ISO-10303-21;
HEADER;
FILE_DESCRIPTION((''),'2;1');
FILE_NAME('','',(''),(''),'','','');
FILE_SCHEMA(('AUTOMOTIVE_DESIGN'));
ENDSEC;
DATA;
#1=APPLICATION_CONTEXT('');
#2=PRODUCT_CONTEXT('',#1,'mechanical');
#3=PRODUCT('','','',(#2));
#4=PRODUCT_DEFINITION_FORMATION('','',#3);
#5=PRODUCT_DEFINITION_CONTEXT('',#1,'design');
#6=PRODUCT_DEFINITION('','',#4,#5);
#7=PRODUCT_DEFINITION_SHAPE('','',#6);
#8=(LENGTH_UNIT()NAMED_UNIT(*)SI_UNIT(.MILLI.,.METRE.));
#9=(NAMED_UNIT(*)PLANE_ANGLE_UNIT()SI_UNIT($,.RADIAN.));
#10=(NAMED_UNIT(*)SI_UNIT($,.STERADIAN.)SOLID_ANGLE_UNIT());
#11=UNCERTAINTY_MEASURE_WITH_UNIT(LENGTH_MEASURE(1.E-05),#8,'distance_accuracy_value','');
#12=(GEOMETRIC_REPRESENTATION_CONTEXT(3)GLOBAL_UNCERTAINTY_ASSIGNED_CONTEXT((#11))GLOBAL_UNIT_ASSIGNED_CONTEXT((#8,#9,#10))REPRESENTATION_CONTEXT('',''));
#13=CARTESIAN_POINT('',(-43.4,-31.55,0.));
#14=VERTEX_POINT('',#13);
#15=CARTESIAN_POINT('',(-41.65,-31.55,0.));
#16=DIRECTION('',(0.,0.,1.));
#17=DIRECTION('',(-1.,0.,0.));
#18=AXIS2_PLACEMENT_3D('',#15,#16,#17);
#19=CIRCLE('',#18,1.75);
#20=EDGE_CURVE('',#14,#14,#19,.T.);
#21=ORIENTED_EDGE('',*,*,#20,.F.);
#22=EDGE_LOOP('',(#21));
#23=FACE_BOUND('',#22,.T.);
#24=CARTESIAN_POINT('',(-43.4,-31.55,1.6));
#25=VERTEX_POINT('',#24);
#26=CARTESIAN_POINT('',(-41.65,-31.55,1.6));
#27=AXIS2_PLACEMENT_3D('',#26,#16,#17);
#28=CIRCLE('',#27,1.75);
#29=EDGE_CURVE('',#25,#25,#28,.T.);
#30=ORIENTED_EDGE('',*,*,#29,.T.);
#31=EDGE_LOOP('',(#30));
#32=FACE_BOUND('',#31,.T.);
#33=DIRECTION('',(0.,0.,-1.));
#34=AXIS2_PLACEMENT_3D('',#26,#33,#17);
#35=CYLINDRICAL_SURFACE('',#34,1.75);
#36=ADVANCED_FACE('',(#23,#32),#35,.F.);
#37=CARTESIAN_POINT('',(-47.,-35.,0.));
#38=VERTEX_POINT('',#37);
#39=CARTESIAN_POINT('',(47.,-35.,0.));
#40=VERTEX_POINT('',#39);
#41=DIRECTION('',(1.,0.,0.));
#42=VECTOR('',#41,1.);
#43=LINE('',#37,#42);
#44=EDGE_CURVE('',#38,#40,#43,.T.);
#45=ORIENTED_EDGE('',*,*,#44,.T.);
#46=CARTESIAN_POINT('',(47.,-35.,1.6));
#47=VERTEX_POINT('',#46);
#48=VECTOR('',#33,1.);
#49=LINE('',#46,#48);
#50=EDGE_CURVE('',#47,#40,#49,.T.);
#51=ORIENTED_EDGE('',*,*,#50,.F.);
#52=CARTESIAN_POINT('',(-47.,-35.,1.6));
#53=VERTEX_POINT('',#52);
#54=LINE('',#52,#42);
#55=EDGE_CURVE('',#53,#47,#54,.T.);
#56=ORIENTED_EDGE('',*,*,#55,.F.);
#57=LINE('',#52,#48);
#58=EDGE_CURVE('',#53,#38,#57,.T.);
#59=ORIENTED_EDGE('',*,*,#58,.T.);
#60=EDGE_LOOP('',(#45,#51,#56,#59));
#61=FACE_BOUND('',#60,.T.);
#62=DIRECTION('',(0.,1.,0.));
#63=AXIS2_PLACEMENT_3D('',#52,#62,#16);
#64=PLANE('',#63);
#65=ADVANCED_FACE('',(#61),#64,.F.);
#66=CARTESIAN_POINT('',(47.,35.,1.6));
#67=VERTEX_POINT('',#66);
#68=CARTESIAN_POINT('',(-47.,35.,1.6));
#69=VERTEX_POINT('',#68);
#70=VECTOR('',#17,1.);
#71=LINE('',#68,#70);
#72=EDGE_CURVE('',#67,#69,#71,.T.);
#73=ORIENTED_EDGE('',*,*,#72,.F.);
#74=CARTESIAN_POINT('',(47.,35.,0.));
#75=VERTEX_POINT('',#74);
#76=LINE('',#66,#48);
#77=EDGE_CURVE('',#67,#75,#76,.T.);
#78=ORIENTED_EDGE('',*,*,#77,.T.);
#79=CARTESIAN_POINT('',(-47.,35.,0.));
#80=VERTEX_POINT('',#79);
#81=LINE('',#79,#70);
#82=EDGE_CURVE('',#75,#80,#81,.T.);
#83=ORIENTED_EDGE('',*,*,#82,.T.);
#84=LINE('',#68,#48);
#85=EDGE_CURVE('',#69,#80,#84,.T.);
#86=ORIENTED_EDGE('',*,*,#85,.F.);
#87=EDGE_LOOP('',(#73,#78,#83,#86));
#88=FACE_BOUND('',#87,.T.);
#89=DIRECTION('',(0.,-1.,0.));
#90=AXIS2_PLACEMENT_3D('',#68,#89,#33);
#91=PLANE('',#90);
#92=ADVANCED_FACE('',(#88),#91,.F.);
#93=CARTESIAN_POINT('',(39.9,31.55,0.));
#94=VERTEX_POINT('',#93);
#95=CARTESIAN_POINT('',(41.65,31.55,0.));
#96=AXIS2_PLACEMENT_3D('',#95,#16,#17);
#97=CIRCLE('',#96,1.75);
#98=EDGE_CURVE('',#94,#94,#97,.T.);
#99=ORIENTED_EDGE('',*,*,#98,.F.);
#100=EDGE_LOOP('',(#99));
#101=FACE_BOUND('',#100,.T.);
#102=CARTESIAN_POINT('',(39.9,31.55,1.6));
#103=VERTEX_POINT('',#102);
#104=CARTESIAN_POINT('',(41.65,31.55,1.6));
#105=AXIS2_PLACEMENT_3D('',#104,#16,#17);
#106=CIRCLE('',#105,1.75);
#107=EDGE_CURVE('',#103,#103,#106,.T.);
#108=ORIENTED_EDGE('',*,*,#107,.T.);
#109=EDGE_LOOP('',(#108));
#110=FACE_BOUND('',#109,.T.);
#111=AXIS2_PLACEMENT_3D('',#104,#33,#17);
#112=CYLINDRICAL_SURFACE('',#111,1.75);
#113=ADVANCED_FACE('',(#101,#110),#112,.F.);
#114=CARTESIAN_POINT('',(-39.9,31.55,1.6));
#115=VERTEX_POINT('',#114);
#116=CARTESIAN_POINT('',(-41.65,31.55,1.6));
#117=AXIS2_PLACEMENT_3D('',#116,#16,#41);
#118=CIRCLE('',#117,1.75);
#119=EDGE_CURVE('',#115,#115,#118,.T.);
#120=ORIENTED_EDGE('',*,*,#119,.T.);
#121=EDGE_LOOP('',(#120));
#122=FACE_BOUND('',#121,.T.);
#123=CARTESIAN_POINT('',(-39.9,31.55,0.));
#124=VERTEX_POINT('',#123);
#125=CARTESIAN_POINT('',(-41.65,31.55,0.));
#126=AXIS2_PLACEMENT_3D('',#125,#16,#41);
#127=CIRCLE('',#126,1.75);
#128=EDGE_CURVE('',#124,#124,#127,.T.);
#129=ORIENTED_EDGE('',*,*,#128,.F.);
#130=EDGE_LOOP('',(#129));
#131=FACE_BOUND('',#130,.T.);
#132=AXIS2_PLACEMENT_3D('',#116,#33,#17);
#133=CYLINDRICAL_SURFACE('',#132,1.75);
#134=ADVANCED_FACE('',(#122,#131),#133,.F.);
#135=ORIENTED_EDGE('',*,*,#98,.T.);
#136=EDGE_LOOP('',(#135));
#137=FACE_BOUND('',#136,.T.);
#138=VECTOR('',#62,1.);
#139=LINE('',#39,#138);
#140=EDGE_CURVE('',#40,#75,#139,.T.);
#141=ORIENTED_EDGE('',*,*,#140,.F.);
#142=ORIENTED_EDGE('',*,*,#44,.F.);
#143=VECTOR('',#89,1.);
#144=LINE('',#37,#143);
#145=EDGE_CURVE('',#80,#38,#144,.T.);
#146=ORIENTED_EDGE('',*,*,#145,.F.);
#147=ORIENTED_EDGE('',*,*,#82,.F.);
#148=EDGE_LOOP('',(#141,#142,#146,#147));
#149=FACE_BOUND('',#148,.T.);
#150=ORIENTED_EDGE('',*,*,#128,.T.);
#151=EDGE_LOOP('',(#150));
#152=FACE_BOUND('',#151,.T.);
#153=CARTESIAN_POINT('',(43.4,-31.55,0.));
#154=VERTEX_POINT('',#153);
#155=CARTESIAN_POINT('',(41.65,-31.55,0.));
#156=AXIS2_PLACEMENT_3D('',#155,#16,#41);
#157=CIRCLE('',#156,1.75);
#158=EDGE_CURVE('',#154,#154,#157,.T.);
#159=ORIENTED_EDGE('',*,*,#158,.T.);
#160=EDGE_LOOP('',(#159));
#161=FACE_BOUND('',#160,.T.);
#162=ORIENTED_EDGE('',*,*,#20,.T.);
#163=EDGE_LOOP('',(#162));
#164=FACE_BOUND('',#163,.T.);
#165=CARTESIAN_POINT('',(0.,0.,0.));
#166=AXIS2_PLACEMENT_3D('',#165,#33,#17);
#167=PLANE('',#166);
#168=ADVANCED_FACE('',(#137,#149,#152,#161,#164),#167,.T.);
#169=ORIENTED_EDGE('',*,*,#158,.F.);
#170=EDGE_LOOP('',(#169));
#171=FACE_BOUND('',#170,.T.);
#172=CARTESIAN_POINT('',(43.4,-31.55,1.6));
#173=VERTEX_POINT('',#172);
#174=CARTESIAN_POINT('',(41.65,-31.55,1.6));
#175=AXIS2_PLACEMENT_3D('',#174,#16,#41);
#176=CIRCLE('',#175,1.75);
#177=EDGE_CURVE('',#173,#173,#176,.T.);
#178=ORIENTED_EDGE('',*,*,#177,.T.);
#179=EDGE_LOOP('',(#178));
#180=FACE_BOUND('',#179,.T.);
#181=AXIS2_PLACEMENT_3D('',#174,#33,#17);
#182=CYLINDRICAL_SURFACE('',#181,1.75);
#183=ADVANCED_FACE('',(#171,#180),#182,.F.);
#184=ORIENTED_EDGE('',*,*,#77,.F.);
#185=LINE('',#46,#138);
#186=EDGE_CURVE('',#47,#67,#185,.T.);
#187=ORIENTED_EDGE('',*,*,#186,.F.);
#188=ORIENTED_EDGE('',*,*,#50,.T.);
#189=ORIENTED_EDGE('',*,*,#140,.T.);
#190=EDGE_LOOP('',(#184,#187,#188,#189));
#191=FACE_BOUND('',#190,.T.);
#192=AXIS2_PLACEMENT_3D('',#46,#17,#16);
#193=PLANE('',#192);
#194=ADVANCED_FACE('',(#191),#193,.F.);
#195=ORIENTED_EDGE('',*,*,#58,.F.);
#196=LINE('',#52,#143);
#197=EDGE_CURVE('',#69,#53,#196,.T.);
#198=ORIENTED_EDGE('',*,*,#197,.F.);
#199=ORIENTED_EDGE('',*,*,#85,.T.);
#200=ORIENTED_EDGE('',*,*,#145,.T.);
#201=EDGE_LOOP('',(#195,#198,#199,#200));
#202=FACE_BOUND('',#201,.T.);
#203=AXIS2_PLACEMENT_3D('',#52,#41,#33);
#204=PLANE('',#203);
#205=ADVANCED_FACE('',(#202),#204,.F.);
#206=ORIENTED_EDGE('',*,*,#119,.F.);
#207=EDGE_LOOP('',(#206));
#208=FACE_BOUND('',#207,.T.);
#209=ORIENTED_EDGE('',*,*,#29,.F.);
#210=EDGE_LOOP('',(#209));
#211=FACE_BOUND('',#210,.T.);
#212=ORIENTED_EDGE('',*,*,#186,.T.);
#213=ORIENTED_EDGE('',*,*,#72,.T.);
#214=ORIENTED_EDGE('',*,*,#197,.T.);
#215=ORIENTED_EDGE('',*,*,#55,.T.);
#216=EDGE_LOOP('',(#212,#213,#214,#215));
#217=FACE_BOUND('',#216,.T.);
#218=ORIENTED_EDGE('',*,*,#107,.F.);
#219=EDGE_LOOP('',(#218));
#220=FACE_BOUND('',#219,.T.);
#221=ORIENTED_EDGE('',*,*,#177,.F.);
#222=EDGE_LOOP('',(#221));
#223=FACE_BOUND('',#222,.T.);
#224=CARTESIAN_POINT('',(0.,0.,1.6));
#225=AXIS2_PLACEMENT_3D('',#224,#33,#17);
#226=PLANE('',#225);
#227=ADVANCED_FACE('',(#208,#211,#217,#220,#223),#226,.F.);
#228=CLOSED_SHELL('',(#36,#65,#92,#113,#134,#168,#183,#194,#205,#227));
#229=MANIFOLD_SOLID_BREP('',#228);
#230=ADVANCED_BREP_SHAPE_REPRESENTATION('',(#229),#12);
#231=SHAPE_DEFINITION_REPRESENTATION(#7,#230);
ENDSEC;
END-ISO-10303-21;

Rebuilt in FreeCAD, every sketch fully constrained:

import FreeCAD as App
import Part
import Sketcher
Q = App.Units.Quantity

doc = App.newDocument("Part")
body = doc.addObject("PartDesign::Body", "Body")

sketch1 = body.newObject("Sketcher::SketchObject", "Sketch")
sketch1.AttachmentSupport = (doc.getObject("XY_Plane"), [""])
sketch1.MapMode = "FlatFace"
sketch1.addGeometry([
    Part.LineSegment(App.Vector(-47, 35, 0), App.Vector(-47, -35, 0)),
    Part.LineSegment(App.Vector(-47, -35, 0), App.Vector(47, -35, 0)),
    Part.LineSegment(App.Vector(47, -35, 0), App.Vector(47, 35, 0)),
    Part.LineSegment(App.Vector(47, 35, 0), App.Vector(-47, 35, 0)),
    Part.Circle(App.Vector(-41.6, -31.6, 0), App.Vector(0, 0, 1), 1.8),
    Part.Circle(App.Vector(41.6, -31.6, 0), App.Vector(0, 0, 1), 1.8),
    Part.Circle(App.Vector(-41.6, 31.6, 0), App.Vector(0, 0, 1), 1.8),
    Part.Circle(App.Vector(41.6, 31.6, 0), App.Vector(0, 0, 1), 1.8),
], False)
sketch1.addConstraint([
    Sketcher.Constraint("Coincident", 0, 2, 1, 1),
    Sketcher.Constraint("Coincident", 1, 2, 2, 1),
    Sketcher.Constraint("Coincident", 2, 2, 3, 1),
    Sketcher.Constraint("Coincident", 3, 2, 0, 1),
    Sketcher.Constraint("Vertical", 0),
    Sketcher.Constraint("Horizontal", 1),
    Sketcher.Constraint("Vertical", 2),
    Sketcher.Constraint("Horizontal", 3),
    Sketcher.Constraint("Equal", 4, 5),
    Sketcher.Constraint("Equal", 5, 6),
    Sketcher.Constraint("Equal", 6, 7),
    Sketcher.Constraint("Symmetric", 5, 3, 6, 3, -1, 1),
    Sketcher.Constraint("Symmetric", 4, 3, 7, 3, -1, 1),
    Sketcher.Constraint("Symmetric", 0, 2, 2, 2, -1, 1),
    Sketcher.Constraint("Symmetric", 4, 3, 5, 3, -2),
    Sketcher.Constraint("Diameter", 4, Q("3.5 mm")),
    Sketcher.Constraint("DistanceX", 1, 1, 1, 2, Q("94 mm")),
    Sketcher.Constraint("DistanceY", 0, 2, 0, 1, Q("70 mm")),
    Sketcher.Constraint("DistanceX", 4, 3, 5, 3, Q("83.3 mm")),
    Sketcher.Constraint("DistanceY", 4, 3, 6, 3, Q("63.1 mm")),
])
pad1 = body.newObject("PartDesign::Pad", "Pad")
pad1.Profile = sketch1
pad1.Length = 1.6

doc.recompute()
